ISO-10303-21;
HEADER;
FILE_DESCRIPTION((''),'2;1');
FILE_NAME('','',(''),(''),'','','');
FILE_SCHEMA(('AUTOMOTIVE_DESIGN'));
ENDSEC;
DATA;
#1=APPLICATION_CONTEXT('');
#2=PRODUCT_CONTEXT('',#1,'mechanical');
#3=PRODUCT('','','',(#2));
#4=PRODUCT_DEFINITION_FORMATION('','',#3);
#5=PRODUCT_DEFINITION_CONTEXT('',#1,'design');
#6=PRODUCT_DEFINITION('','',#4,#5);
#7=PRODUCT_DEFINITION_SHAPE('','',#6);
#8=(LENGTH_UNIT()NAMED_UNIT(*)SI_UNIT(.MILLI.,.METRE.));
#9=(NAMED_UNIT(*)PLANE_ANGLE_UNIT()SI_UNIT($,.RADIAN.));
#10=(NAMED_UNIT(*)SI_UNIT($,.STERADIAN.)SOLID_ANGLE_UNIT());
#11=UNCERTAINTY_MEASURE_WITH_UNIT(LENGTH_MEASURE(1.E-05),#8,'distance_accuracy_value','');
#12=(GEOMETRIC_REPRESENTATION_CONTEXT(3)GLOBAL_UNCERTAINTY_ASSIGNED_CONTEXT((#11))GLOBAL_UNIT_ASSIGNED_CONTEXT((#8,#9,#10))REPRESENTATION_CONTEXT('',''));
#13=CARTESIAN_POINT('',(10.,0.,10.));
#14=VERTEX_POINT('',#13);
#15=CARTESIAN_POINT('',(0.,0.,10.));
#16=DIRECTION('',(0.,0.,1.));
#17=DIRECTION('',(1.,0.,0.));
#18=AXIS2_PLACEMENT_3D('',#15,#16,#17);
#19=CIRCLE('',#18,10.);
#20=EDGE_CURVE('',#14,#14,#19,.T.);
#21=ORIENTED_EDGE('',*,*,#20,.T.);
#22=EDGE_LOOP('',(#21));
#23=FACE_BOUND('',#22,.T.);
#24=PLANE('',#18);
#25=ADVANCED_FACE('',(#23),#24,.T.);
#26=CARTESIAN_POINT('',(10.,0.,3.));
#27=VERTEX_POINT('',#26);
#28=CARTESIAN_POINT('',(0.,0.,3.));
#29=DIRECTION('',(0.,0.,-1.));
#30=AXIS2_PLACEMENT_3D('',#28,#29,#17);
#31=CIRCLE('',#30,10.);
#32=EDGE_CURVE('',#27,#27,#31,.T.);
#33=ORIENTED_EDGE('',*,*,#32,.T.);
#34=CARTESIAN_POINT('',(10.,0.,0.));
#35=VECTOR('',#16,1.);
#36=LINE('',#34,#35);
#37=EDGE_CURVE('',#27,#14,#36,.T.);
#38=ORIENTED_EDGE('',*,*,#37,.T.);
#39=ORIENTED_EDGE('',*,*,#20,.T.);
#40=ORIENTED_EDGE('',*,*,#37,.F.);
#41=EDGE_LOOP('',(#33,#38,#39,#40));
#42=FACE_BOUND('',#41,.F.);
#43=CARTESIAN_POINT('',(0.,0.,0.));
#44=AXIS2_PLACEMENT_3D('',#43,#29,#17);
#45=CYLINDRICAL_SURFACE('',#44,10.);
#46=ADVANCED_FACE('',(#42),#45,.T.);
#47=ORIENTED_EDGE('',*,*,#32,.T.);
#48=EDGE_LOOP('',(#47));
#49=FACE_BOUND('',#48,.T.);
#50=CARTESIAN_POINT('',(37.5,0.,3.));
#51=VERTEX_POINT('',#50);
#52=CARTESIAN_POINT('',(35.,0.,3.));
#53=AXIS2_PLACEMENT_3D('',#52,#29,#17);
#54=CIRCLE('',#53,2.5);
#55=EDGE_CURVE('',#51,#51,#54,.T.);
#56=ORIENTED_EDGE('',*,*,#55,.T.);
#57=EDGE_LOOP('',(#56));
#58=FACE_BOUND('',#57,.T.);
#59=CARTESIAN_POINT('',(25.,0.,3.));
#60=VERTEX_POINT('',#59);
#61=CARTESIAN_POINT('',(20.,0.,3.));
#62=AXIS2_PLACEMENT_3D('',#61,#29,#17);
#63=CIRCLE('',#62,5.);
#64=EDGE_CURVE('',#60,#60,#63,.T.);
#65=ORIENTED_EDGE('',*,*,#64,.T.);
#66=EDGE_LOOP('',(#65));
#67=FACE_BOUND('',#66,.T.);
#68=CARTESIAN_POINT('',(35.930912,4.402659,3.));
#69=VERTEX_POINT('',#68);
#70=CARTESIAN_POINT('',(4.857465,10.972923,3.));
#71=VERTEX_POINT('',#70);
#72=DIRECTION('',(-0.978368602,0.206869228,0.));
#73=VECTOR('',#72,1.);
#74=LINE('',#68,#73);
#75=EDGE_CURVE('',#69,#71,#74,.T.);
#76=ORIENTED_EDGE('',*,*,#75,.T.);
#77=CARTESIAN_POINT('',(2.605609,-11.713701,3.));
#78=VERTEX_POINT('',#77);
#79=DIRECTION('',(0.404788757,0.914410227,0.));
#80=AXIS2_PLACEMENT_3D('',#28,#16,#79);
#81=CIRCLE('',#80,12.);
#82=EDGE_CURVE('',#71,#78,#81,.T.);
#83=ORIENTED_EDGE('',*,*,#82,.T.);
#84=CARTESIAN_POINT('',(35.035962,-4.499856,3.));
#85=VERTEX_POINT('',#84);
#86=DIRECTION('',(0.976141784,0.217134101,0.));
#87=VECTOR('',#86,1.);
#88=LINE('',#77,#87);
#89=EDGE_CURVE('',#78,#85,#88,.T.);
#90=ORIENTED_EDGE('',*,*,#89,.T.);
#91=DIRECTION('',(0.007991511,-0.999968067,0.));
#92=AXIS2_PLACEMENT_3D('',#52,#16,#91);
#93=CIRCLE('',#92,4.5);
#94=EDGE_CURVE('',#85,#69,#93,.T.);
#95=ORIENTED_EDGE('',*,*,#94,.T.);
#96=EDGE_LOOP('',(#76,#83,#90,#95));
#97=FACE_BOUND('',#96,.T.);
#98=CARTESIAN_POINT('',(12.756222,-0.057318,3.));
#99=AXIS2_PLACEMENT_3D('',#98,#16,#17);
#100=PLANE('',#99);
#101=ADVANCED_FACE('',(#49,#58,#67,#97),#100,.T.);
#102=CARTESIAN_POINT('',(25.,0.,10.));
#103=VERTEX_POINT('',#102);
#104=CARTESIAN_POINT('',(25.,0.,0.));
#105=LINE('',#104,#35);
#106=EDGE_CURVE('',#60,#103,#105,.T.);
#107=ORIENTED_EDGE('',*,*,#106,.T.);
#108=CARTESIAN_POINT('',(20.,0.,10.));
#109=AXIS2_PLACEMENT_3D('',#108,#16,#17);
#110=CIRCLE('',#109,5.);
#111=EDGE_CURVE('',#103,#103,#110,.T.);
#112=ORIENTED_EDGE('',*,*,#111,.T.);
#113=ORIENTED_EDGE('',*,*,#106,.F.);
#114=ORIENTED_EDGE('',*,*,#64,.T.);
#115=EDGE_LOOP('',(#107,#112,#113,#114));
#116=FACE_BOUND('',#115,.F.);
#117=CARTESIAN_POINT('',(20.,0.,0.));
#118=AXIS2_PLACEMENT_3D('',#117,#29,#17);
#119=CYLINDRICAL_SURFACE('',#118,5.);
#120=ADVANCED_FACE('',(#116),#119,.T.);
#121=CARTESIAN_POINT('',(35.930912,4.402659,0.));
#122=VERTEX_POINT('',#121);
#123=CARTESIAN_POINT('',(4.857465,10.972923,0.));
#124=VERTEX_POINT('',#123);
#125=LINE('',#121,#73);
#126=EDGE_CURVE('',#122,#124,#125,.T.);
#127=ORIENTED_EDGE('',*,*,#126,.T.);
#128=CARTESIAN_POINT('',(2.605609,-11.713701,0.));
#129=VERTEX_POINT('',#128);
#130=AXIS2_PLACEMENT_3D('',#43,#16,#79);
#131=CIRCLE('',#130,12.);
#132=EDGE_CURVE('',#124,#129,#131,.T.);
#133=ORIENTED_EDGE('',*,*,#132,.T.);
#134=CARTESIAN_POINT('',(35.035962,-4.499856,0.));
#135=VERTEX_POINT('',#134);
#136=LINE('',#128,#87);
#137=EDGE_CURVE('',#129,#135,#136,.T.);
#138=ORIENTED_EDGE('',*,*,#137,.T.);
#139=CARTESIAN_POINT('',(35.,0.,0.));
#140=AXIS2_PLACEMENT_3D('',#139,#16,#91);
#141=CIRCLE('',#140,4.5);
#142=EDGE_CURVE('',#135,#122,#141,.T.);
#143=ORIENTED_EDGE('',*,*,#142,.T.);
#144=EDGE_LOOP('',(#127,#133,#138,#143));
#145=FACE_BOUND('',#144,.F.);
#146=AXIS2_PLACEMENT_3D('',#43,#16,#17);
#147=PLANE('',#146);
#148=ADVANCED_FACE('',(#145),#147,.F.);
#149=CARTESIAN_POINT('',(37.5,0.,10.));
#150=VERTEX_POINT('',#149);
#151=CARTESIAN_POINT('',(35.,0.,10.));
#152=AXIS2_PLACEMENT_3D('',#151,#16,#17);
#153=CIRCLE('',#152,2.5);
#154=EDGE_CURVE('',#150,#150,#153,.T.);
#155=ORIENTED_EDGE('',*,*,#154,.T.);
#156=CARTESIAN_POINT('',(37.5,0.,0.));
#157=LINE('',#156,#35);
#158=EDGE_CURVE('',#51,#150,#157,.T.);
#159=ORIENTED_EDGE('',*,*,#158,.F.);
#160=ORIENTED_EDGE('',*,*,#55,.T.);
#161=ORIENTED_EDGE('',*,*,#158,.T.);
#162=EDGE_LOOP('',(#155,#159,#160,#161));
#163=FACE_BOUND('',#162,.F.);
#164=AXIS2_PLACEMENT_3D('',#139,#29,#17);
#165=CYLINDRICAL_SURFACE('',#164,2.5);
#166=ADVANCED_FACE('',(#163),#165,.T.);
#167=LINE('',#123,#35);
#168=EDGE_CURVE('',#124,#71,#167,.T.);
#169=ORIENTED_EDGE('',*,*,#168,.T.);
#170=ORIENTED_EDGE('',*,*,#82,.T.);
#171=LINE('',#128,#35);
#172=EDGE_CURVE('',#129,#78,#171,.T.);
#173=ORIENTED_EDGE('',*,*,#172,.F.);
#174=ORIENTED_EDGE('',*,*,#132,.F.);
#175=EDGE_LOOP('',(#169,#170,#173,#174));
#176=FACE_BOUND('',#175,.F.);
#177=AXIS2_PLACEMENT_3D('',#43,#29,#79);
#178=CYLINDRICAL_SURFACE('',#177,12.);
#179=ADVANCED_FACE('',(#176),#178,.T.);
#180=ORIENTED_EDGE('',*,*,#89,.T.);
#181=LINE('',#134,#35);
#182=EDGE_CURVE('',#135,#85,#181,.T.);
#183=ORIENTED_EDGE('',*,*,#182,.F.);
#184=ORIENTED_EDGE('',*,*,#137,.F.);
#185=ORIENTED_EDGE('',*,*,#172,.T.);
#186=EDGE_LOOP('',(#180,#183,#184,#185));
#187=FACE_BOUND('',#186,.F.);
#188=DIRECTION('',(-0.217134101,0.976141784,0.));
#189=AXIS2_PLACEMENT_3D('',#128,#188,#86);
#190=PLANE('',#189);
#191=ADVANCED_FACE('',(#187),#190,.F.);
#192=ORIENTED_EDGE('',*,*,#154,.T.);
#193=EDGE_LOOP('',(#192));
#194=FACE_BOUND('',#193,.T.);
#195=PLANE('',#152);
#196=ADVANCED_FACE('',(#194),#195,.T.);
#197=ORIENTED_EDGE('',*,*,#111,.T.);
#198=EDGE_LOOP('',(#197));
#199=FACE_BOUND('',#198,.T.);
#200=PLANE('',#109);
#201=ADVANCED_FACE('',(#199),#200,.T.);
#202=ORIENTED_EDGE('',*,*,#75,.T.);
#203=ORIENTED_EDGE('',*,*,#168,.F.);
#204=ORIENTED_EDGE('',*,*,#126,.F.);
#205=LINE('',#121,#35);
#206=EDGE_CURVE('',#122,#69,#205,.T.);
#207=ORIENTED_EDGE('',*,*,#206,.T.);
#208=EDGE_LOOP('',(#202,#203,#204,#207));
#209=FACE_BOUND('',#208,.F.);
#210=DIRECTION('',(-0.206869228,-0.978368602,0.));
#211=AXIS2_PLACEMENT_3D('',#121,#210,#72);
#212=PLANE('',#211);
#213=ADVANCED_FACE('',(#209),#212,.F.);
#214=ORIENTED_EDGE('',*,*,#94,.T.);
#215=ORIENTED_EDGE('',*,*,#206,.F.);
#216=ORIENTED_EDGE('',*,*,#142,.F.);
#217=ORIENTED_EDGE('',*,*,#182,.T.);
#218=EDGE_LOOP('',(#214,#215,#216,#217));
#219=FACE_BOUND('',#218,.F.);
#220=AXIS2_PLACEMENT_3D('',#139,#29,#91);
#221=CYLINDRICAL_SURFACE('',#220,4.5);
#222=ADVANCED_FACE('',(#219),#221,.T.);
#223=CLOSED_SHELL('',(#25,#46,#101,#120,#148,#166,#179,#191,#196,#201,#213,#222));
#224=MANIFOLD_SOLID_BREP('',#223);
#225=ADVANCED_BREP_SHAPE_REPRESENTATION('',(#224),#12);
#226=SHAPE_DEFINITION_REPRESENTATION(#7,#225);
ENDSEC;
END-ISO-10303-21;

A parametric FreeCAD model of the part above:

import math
import FreeCAD as App
import Part
import Sketcher
from FreeCAD import Vector

doc = App.newDocument("Part")
body = doc.addObject("PartDesign::Body", "Body")

sketch1 = body.newObject("Sketcher::SketchObject", "Sketch")
sketch1.AttachmentSupport = (doc.getObject("XY_Plane"), [""])
sketch1.MapMode = "FlatFace"
sketch1.addGeometry(Part.LineSegment(Vector(2.605609, -11.713701, 0), Vector(35.035962, -4.499856, 0)), False)
sketch1.addGeometry(Part.ArcOfCircle(Part.Circle(Vector(35, 0, 0), Vector(0, 0, 1), 4.5), math.radians(-89.542115), math.radians(78.061053)), False)
sketch1.addGeometry(Part.LineSegment(Vector(35.930912, 4.402659, 0), Vector(4.857465, 10.972923, 0)), False)
sketch1.addGeometry(Part.ArcOfCircle(Part.Circle(Vector(0, 0, 0), Vector(0, 0, 1), 12), math.radians(66.12211), math.radians(282.54076)), False)
sketch1.addConstraint(Sketcher.Constraint("Coincident", 0, 2, 1, 1))
sketch1.addConstraint(Sketcher.Constraint("Coincident", 1, 2, 2, 1))
sketch1.addConstraint(Sketcher.Constraint("Coincident", 2, 2, 3, 1))
sketch1.addConstraint(Sketcher.Constraint("Coincident", 3, 2, 0, 1))
sketch1.addConstraint(Sketcher.Constraint("Coincident", 3, 3, -1, 1))
sketch1.addConstraint(Sketcher.Constraint("PointOnObject", 1, 3, -1))
sketch1.addConstraint(Sketcher.Constraint("Radius", 3, 12.0))
sketch1.addConstraint(Sketcher.Constraint("Radius", 1, 4.5))
sketch1.addConstraint(Sketcher.Constraint("DistanceX", -1, 1, 1, 3, 35.0))
sketch1.addConstraint(Sketcher.Constraint("DistanceY", 3, 2, -1, 1, 11.713701))
sketch1.addConstraint(Sketcher.Constraint("Distance", 2, 31.76047))
sketch1.addConstraint(Sketcher.Constraint("DistanceX", -1, 1, 0, 2, 35.035962))
sketch1.addConstraint(Sketcher.Constraint("DistanceY", -1, 1, 1, 2, 4.402659))
pad1 = body.newObject("PartDesign::Pad", "Pad")
pad1.Profile = sketch1
pad1.Length = 3

sketch2 = body.newObject("Sketcher::SketchObject", "Sketch001")
sketch2.AttachmentSupport = (doc.getObject("XY_Plane"), [""])
sketch2.MapMode = "FlatFace"
sketch2.addGeometry(Part.Circle(Vector(0, 0, 0), Vector(0, 0, 1), 10), False)
sketch2.addGeometry(Part.Circle(Vector(20, 0, 0), Vector(0, 0, 1), 5), False)
sketch2.addGeometry(Part.Circle(Vector(35, 0, 0), Vector(0, 0, 1), 2.5), False)
sketch2.addConstraint(Sketcher.Constraint("Coincident", 0, 3, -1, 1))
sketch2.addConstraint(Sketcher.Constraint("PointOnObject", 1, 3, -1))
sketch2.addConstraint(Sketcher.Constraint("PointOnObject", 2, 3, -1))
sketch2.addConstraint(Sketcher.Constraint("Diameter", 0, 20.0))
sketch2.addConstraint(Sketcher.Constraint("Diameter", 1, 10.0))
sketch2.addConstraint(Sketcher.Constraint("Diameter", 2, 5.0))
sketch2.addConstraint(Sketcher.Constraint("DistanceX", -1, 1, 1, 3, 20.0))
sketch2.addConstraint(Sketcher.Constraint("DistanceX", -1, 1, 2, 3, 35.0))
pad2 = body.newObject("PartDesign::Pad", "Pad001")
pad2.Profile = sketch2
pad2.Length = 10

doc.recompute()
